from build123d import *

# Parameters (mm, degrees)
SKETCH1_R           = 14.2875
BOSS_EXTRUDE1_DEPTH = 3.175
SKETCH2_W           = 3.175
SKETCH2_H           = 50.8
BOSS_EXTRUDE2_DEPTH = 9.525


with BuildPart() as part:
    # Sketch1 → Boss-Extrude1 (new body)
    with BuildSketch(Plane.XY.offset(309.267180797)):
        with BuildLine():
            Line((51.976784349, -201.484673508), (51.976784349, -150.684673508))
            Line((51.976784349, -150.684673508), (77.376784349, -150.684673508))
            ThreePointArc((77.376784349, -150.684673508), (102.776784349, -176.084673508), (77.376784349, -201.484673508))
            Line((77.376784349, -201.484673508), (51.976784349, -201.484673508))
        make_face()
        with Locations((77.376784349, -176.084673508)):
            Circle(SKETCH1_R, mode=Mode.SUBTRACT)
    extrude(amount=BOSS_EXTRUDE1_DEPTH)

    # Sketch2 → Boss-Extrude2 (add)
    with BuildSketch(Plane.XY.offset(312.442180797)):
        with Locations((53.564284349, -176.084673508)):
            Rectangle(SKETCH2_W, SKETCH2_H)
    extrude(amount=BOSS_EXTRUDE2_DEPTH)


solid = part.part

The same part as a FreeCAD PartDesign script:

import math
import FreeCAD as App
import Part
import Sketcher
Q = App.Units.Quantity

doc = App.newDocument("Part")
body = doc.addObject("PartDesign::Body", "Body")

sketch1 = doc.addObject("Sketcher::SketchObject", "Sketch")
body.addObject(sketch1)
sketch1.AttachmentSupport = (doc.XY_Plane, [""])
sketch1.MapMode = "FlatFace"
sketch1.AttachmentOffset = App.Placement(App.Vector(0, 0, 309.267181), App.Rotation())
sketch1.addGeometry(Part.LineSegment(App.Vector(51.976784, -150.684674, 0), App.Vector(51.976784, -201.484674, 0)), False)
sketch1.addGeometry(Part.LineSegment(App.Vector(51.976784, -201.484674, 0), App.Vector(77.376784, -201.484674, 0)), False)
sketch1.addGeometry(Part.ArcOfCircle(Part.Circle(App.Vector(77.376784, -176.084674, 0), App.Vector(0, 0, 1), 25.4), math.radians(-90), math.radians(90)), False)
sketch1.addGeometry(Part.LineSegment(App.Vector(77.376784, -150.684674, 0), App.Vector(51.976784, -150.684674, 0)), False)
sketch1.addGeometry(Part.Circle(App.Vector(77.376784, -176.084674, 0), App.Vector(0, 0, 1), 14.2875), False)
sketch1.addConstraint(Sketcher.Constraint("Coincident", 0, 2, 1, 1))
sketch1.addConstraint(Sketcher.Constraint("Tangent", 1, 2, 2, 1))
sketch1.addConstraint(Sketcher.Constraint("Tangent", 2, 2, 3, 1))
sketch1.addConstraint(Sketcher.Constraint("Coincident", 3, 2, 0, 1))
sketch1.addConstraint(Sketcher.Constraint("Vertical", 0))
sketch1.addConstraint(Sketcher.Constraint("Horizontal", 1))
sketch1.addConstraint(Sketcher.Constraint("Horizontal", 3))
sketch1.addConstraint(Sketcher.Constraint("Coincident", 4, 3, 2, 3))
sketch1.addConstraint(Sketcher.Constraint("Radius", 2, Q("1 in")))
sketch1.addConstraint(Sketcher.Constraint("DistanceX", 1, 1, 1, 2, Q("1 in")))
sketch1.addConstraint(Sketcher.Constraint("Diameter", 4, Q("1.125 in")))
sketch1.addConstraint(Sketcher.Constraint("DistanceX", -1, 1, 2, 3, 77.376784))
sketch1.addConstraint(Sketcher.Constraint("DistanceY", 2, 3, -1, 1, 176.084674))
pad1 = doc.addObject("PartDesign::Pad", "Pad")
body.addObject(pad1)
pad1.Profile = sketch1
pad1.Length = Q("0.125 in")

sketch2 = doc.addObject("Sketcher::SketchObject", "Sketch001")
body.addObject(sketch2)
sketch2.AttachmentSupport = (doc.XY_Plane, [""])
sketch2.MapMode = "FlatFace"
sketch2.AttachmentOffset = App.Placement(App.Vector(0, 0, 312.442181), App.Rotation())
sketch2.addGeometry(Part.LineSegment(App.Vector(51.976784, -150.684674, 0), App.Vector(51.976784, -201.484674, 0)), False)
sketch2.addGeometry(Part.LineSegment(App.Vector(51.976784, -201.484674, 0), App.Vector(55.151784, -201.484674, 0)), False)
sketch2.addGeometry(Part.LineSegment(App.Vector(55.151784, -201.484674, 0), App.Vector(55.151784, -150.684674, 0)), False)
sketch2.addGeometry(Part.LineSegment(App.Vector(55.151784, -150.684674, 0), App.Vector(51.976784, -150.684674, 0)), False)
sketch2.addConstraint(Sketcher.Constraint("Coincident", 0, 2, 1, 1))
sketch2.addConstraint(Sketcher.Constraint("Coincident", 1, 2, 2, 1))
sketch2.addConstraint(Sketcher.Constraint("Coincident", 2, 2, 3, 1))
sketch2.addConstraint(Sketcher.Constraint("Coincident", 3, 2, 0, 1))
sketch2.addConstraint(Sketcher.Constraint("Vertical", 0))
sketch2.addConstraint(Sketcher.Constraint("Horizontal", 1))
sketch2.addConstraint(Sketcher.Constraint("Vertical", 2))
sketch2.addConstraint(Sketcher.Constraint("Horizontal", 3))
sketch2.addConstraint(Sketcher.Constraint("DistanceY", 0, 2, 0, 1, Q("2 in")))
sketch2.addConstraint(Sketcher.Constraint("DistanceX", 1, 1, 1, 2, Q("0.125 in")))
sketch2.addConstraint(Sketcher.Constraint("DistanceX", -1, 1, 0, 2, 51.976784))
sketch2.addConstraint(Sketcher.Constraint("DistanceY", 0, 2, -1, 1, 201.484674))
pad2 = doc.addObject("PartDesign::Pad", "Pad001")
body.addObject(pad2)
pad2.Profile = sketch2
pad2.Length = Q("0.375 in")

doc.recompute()
